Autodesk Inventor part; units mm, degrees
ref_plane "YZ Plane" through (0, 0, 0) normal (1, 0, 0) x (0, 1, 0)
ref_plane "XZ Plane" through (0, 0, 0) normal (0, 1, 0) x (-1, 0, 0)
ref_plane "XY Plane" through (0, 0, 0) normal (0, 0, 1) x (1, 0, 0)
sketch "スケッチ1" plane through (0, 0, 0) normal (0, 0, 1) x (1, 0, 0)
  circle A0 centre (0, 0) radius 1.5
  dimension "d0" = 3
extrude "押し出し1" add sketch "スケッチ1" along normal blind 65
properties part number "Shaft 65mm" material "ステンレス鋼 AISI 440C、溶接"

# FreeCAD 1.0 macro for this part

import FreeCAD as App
import Part
import Sketcher

doc = App.newDocument("Part")
params = doc.addObject("Spreadsheet::Sheet", "Params")
for row, (alias, value) in enumerate([
    ("sketch1_diameter", "3 mm"),
    ("pad1_length", "65 mm"),
], start=1):
    params.set(f"A{row}", alias)
    params.set(f"B{row}", "=" + value)
    params.setAlias(f"B{row}", alias)

body = doc.addObject("PartDesign::Body", "Body")

sketch1 = body.newObject("Sketcher::SketchObject", "Sketch")
sketch1.AttachmentSupport = (doc.getObject("XY_Plane"), [""])
sketch1.MapMode = "FlatFace"
sketch1.addGeometry(Part.Circle(App.Vector(0, 0, 0), App.Vector(0, 0, 1), 1.5), False)
sketch1.addConstraint([
    Sketcher.Constraint("Coincident", 0, 3, -1, 1),
    Sketcher.Constraint("Diameter", 0, 3.0),
])
sketch1.setExpression("Constraints[1]", "Params.sketch1_diameter")
pad1 = body.newObject("PartDesign::Pad", "Pad")
pad1.Profile = sketch1
pad1.setExpression("Length", "Params.pad1_length")

doc.recompute()
